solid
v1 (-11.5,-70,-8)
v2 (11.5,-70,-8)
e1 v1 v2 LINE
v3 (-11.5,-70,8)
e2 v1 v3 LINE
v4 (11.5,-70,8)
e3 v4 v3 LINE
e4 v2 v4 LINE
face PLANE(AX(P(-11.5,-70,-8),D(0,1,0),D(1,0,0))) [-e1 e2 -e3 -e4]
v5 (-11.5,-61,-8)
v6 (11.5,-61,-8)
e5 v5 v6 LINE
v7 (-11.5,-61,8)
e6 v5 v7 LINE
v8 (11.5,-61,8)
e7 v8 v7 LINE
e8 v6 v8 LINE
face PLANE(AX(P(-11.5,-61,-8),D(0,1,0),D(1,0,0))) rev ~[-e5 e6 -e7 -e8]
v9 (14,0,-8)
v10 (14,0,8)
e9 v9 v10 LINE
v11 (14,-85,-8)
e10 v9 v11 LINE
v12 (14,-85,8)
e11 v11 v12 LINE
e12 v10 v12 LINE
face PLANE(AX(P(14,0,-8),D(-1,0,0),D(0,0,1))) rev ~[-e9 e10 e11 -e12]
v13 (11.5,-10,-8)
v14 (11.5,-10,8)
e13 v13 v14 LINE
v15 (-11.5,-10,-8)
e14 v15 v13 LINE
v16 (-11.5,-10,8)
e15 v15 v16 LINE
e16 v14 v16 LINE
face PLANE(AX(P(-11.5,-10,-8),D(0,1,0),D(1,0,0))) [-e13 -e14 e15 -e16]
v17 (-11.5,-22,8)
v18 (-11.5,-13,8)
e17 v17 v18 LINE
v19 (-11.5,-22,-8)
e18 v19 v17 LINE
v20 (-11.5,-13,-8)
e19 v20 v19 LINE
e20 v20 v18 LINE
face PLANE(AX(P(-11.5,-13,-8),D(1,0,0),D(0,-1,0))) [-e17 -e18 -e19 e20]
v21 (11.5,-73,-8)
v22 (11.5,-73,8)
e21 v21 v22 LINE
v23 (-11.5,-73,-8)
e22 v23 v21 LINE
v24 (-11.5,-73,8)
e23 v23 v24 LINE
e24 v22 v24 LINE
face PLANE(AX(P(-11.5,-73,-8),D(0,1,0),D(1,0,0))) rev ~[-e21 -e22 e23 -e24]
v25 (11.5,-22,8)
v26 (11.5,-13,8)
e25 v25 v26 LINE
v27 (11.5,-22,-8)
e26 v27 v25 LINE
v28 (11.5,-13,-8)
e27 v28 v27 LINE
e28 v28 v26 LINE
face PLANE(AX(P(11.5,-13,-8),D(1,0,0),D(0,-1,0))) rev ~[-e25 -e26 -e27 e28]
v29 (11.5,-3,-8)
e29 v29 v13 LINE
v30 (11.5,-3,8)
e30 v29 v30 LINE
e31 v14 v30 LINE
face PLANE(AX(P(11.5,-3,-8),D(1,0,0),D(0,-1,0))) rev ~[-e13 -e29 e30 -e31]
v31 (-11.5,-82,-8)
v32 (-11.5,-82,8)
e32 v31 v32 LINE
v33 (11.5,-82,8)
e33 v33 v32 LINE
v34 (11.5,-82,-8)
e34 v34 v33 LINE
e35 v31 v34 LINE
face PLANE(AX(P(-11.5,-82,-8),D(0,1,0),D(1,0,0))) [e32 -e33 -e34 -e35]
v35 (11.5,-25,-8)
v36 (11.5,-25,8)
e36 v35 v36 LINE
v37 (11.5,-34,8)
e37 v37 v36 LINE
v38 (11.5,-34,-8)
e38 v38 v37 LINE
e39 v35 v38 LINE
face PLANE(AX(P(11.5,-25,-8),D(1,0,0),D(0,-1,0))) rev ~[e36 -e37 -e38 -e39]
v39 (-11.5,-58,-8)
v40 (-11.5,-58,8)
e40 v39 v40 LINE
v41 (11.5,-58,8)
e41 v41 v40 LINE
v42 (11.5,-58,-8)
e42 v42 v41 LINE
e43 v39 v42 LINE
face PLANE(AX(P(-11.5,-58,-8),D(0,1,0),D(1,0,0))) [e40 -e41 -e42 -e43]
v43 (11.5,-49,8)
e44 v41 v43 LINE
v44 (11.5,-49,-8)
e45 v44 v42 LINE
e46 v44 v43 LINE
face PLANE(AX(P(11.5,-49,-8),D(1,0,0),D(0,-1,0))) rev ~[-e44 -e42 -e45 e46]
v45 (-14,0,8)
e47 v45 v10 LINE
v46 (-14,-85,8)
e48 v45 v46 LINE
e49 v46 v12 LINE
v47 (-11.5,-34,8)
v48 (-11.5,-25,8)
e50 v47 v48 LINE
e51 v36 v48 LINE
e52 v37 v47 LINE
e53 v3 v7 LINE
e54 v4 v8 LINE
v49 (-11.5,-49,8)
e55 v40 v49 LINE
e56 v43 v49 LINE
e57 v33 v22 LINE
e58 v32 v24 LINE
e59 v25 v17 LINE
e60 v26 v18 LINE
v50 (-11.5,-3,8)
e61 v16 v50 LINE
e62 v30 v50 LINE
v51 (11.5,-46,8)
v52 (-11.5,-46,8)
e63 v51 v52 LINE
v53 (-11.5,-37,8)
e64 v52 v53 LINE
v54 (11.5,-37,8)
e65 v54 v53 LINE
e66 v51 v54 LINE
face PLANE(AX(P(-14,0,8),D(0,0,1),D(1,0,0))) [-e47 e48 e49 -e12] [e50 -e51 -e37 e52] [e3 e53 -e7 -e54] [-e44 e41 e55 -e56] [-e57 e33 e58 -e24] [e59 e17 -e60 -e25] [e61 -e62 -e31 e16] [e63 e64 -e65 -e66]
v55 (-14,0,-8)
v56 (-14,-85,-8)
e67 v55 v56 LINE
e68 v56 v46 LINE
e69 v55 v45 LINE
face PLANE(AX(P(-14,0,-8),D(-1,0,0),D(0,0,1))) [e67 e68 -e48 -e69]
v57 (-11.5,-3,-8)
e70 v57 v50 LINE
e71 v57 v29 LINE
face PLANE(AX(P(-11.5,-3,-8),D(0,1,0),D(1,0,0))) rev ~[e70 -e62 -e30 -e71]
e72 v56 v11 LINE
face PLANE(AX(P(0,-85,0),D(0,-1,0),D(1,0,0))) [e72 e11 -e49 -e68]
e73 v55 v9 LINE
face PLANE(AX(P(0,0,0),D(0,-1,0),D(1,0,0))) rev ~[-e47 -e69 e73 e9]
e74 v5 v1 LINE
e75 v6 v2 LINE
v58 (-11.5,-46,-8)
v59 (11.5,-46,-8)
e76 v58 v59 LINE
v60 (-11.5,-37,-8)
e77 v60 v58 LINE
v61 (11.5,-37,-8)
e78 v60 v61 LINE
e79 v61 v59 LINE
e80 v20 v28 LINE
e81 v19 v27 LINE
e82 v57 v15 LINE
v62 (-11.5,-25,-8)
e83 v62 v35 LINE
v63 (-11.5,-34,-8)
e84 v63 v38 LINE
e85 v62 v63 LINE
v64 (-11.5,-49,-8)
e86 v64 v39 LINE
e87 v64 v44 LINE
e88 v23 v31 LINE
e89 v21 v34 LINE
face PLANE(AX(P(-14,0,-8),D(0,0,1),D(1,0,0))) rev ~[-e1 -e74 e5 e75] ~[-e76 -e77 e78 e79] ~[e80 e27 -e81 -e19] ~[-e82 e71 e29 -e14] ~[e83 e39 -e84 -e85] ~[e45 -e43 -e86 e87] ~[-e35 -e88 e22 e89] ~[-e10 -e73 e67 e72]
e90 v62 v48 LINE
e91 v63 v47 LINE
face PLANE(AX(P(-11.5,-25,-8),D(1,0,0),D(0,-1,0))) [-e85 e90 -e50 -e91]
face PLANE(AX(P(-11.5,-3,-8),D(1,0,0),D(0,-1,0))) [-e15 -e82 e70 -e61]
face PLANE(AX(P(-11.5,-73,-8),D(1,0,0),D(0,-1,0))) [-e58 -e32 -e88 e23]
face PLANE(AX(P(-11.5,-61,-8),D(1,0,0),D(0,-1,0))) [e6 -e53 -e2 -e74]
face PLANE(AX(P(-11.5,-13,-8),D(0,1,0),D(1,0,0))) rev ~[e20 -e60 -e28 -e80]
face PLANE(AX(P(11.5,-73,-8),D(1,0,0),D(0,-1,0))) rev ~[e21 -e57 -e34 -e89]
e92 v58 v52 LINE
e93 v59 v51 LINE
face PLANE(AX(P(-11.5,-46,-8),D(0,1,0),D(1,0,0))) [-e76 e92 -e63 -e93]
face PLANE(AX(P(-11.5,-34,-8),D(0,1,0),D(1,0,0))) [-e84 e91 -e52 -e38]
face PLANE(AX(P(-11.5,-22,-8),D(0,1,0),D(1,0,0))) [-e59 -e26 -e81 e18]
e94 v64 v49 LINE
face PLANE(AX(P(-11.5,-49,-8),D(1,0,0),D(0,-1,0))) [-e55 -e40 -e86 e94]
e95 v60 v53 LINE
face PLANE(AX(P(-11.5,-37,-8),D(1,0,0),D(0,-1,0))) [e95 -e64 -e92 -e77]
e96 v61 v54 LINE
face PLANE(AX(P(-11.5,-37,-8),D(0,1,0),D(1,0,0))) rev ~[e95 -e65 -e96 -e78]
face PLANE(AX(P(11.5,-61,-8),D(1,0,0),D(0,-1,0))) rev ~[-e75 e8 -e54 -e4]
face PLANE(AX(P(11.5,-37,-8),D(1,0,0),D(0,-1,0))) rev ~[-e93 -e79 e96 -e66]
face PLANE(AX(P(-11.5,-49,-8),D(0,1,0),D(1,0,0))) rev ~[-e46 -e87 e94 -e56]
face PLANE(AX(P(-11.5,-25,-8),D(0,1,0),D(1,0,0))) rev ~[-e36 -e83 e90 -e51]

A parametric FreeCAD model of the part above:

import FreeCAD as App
import Part
import Sketcher

doc = App.newDocument("Part")
params = doc.addObject("Spreadsheet::Sheet", "Params")
for row, (alias, value) in enumerate([
    ("sketch1_width", "28 mm"),
    ("sketch1_height", "16 mm"),
    ("pad1_length", "85 mm"),
    ("sketch2_width", "23 mm"),
    ("sketch2_height", "9 mm"),
    ("sketch2_height2", "7 mm"),
    ("pocket1_length", "25 mm"),
], start=1):
    params.set(f"A{row}", alias)
    params.set(f"B{row}", "=" + value)
    params.setAlias(f"B{row}", alias)

body = doc.addObject("PartDesign::Body", "Body")

sketch1 = body.newObject("Sketcher::SketchObject", "Sketch")
sketch1.AttachmentSupport = (doc.getObject("XZ_Plane"), [""])
sketch1.MapMode = "FlatFace"
sketch1.addGeometry([
    Part.LineSegment(App.Vector(-14, 8, 0), App.Vector(-14, -8, 0)),
    Part.LineSegment(App.Vector(-14, -8, 0), App.Vector(14, -8, 0)),
    Part.LineSegment(App.Vector(14, -8, 0), App.Vector(14, 8, 0)),
    Part.LineSegment(App.Vector(14, 8, 0), App.Vector(-14, 8, 0)),
], False)
sketch1.addConstraint([
    Sketcher.Constraint("Coincident", 0, 2, 1, 1),
    Sketcher.Constraint("Coincident", 1, 2, 2, 1),
    Sketcher.Constraint("Coincident", 2, 2, 3, 1),
    Sketcher.Constraint("Coincident", 3, 2, 0, 1),
    Sketcher.Constraint("Vertical", 0),
    Sketcher.Constraint("Horizontal", 1),
    Sketcher.Constraint("Vertical", 2),
    Sketcher.Constraint("Horizontal", 3),
    Sketcher.Constraint("Symmetric", 0, 2, 2, 2, -1, 1),
    Sketcher.Constraint("DistanceX", 1, 1, 1, 2, 28.0),
    Sketcher.Constraint("DistanceY", 0, 2, 0, 1, 16.0),
])
sketch1.setExpression("Constraints[9]", "Params.sketch1_width")
sketch1.setExpression("Constraints[10]", "Params.sketch1_height")
pad1 = body.newObject("PartDesign::Pad", "Pad")
pad1.Profile = sketch1
pad1.setExpression("Length", "Params.pad1_length")

sketch2 = body.newObject("Sketcher::SketchObject", "Sketch001")
sketch2.AttachmentSupport = (doc.getObject("XY_Plane"), [""])
sketch2.MapMode = "FlatFace"
sketch2.AttachmentOffset = App.Placement(App.Vector(0, 0, -8), App.Rotation())
sketch2.addGeometry([
    Part.LineSegment(App.Vector(-12, -82, 0), App.Vector(-12, -73, 0)),
    Part.LineSegment(App.Vector(-12, -73, 0), App.Vector(12, -73, 0)),
    Part.LineSegment(App.Vector(12, -73, 0), App.Vector(12, -82, 0)),
    Part.LineSegment(App.Vector(12, -82, 0), App.Vector(-12, -82, 0)),
    Part.LineSegment(App.Vector(-12, -70, 0), App.Vector(-12, -61, 0)),
    Part.LineSegment(App.Vector(-12, -61, 0), App.Vector(12, -61, 0)),
    Part.LineSegment(App.Vector(12, -61, 0), App.Vector(12, -70, 0)),
    Part.LineSegment(App.Vector(12, -70, 0), App.Vector(-12, -70, 0)),
    Part.LineSegment(App.Vector(-12, -58, 0), App.Vector(-12, -49, 0)),
    Part.LineSegment(App.Vector(-12, -49, 0), App.Vector(12, -49, 0)),
    Part.LineSegment(App.Vector(12, -49, 0), App.Vector(12, -58, 0)),
    Part.LineSegment(App.Vector(12, -58, 0), App.Vector(-12, -58, 0)),
    Part.LineSegment(App.Vector(-12, -46, 0), App.Vector(-12, -37, 0)),
    Part.LineSegment(App.Vector(-12, -37, 0), App.Vector(12, -37, 0)),
    Part.LineSegment(App.Vector(12, -37, 0), App.Vector(12, -46, 0)),
    Part.LineSegment(App.Vector(12, -46, 0), App.Vector(-12, -46, 0)),
    Part.LineSegment(App.Vector(-12, -34, 0), App.Vector(-12, -25, 0)),
    Part.LineSegment(App.Vector(-12, -25, 0), App.Vector(12, -25, 0)),
    Part.LineSegment(App.Vector(12, -25, 0), App.Vector(12, -34, 0)),
    Part.LineSegment(App.Vector(12, -34, 0), App.Vector(-12, -34, 0)),
    Part.LineSegment(App.Vector(-12, -22, 0), App.Vector(-12, -13, 0)),
    Part.LineSegment(App.Vector(-12, -13, 0), App.Vector(12, -13, 0)),
    Part.LineSegment(App.Vector(12, -13, 0), App.Vector(12, -22, 0)),
    Part.LineSegment(App.Vector(12, -22, 0), App.Vector(-12, -22, 0)),
    Part.LineSegment(App.Vector(-12, -10, 0), App.Vector(-12, -3, 0)),
    Part.LineSegment(App.Vector(-12, -3, 0), App.Vector(12, -3, 0)),
    Part.LineSegment(App.Vector(12, -3, 0), App.Vector(12, -10, 0)),
    Part.LineSegment(App.Vector(12, -10, 0), App.Vector(-12, -10, 0)),
], False)
sketch2.addConstraint([
    Sketcher.Constraint("Coincident", 0, 2, 1, 1),
    Sketcher.Constraint("Coincident", 1, 2, 2, 1),
    Sketcher.Constraint("Coincident", 2, 2, 3, 1),
    Sketcher.Constraint("Coincident", 3, 2, 0, 1),
    Sketcher.Constraint("Coincident", 4, 2, 5, 1),
    Sketcher.Constraint("Coincident", 5, 2, 6, 1),
    Sketcher.Constraint("Coincident", 6, 2, 7, 1),
    Sketcher.Constraint("Coincident", 7, 2, 4, 1),
    Sketcher.Constraint("Coincident", 8, 2, 9, 1),
    Sketcher.Constraint("Coincident", 9, 2, 10, 1),
    Sketcher.Constraint("Coincident", 10, 2, 11, 1),
    Sketcher.Constraint("Coincident", 11, 2, 8, 1),
    Sketcher.Constraint("Coincident", 12, 2, 13, 1),
    Sketcher.Constraint("Coincident", 13, 2, 14, 1),
    Sketcher.Constraint("Coincident", 14, 2, 15, 1),
    Sketcher.Constraint("Coincident", 15, 2, 12, 1),
    Sketcher.Constraint("Coincident", 16, 2, 17, 1),
    Sketcher.Constraint("Coincident", 17, 2, 18, 1),
    Sketcher.Constraint("Coincident", 18, 2, 19, 1),
    Sketcher.Constraint("Coincident", 19, 2, 16, 1),
    Sketcher.Constraint("Coincident", 20, 2, 21, 1),
    Sketcher.Constraint("Coincident", 21, 2, 22, 1),
    Sketcher.Constraint("Coincident", 22, 2, 23, 1),
    Sketcher.Constraint("Coincident", 23, 2, 20, 1),
    Sketcher.Constraint("Coincident", 24, 2, 25, 1),
    Sketcher.Constraint("Coincident", 25, 2, 26, 1),
    Sketcher.Constraint("Coincident", 26, 2, 27, 1),
    Sketcher.Constraint("Coincident", 27, 2, 24, 1),
    Sketcher.Constraint("Vertical", 0),
    Sketcher.Constraint("Horizontal", 1),
    Sketcher.Constraint("Vertical", 2),
    Sketcher.Constraint("Horizontal", 3),
    Sketcher.Constraint("Vertical", 4),
    Sketcher.Constraint("Horizontal", 5),
    Sketcher.Constraint("Vertical", 6),
    Sketcher.Constraint("Horizontal", 7),
    Sketcher.Constraint("Vertical", 8),
    Sketcher.Constraint("Horizontal", 9),
    Sketcher.Constraint("Vertical", 10),
    Sketcher.Constraint("Horizontal", 11),
    Sketcher.Constraint("Vertical", 12),
    Sketcher.Constraint("Horizontal", 13),
    Sketcher.Constraint("Vertical", 14),
    Sketcher.Constraint("Horizontal", 15),
    Sketcher.Constraint("Vertical", 16),
    Sketcher.Constraint("Horizontal", 17),
    Sketcher.Constraint("Vertical", 18),
    Sketcher.Constraint("Horizontal", 19),
    Sketcher.Constraint("Vertical", 20),
    Sketcher.Constraint("Horizontal", 21),
    Sketcher.Constraint("Vertical", 22),
    Sketcher.Constraint("Horizontal", 23),
    Sketcher.Constraint("Vertical", 24),
    Sketcher.Constraint("Horizontal", 25),
    Sketcher.Constraint("Vertical", 26),
    Sketcher.Constraint("Horizontal", 27),
    Sketcher.Constraint("Vertical", 3, 2, 4, 2),
    Sketcher.Constraint("Vertical", 2, 2, 5, 2),
    Sketcher.Constraint("Vertical", 7, 2, 8, 2),
    Sketcher.Constraint("Vertical", 6, 2, 9, 2),
    Sketcher.Constraint("Vertical", 11, 2, 12, 2),
    Sketcher.Constraint("Vertical", 10, 2, 13, 2),
    Sketcher.Constraint("Vertical", 15, 2, 16, 2),
    Sketcher.Constraint("Vertical", 14, 2, 17, 2),
    Sketcher.Constraint("Vertical", 19, 2, 20, 2),
    Sketcher.Constraint("Vertical", 18, 2, 21, 2),
    Sketcher.Constraint("Vertical", 23, 2, 24, 2),
    Sketcher.Constraint("Vertical", 22, 2, 25, 2),
    Sketcher.Constraint("Equal", 2, 4),
    Sketcher.Constraint("Equal", 6, 8),
    Sketcher.Constraint("Equal", 10, 12),
    Sketcher.Constraint("Equal", 14, 16),
    Sketcher.Constraint("Equal", 18, 20),
    Sketcher.Constraint("DistanceX", 1, 1, 1, 2, 23.0),
    Sketcher.Constraint("DistanceY", 0, 1, 0, 2, 9.0),
    Sketcher.Constraint("DistanceY", 24, 1, 24, 2, 7.0),
    Sketcher.Constraint("DistanceY", 0, 2, -1, 1, 73.0),
    Sketcher.Constraint("DistanceY", 4, 2, -1, 1, 61.0),
    Sketcher.Constraint("DistanceY", 8, 2, -1, 1, 49.0),
    Sketcher.Constraint("DistanceY", 12, 2, -1, 1, 37.0),
    Sketcher.Constraint("DistanceY", 16, 2, -1, 1, 25.0),
    Sketcher.Constraint("DistanceY", 20, 2, -1, 1, 13.0),
    Sketcher.Constraint("DistanceY", 24, 2, -1, 1, 3.0),
    Sketcher.Constraint("DistanceX", 0, 2, -1, 1, 11.5),
])
sketch2.setExpression("Constraints[73]", "Params.sketch2_width")
sketch2.setExpression("Constraints[74]", "Params.sketch2_height")
sketch2.setExpression("Constraints[75]", "Params.sketch2_height2")
pocket1 = body.newObject("PartDesign::Pocket", "Pocket")
pocket1.Profile = sketch2
pocket1.setExpression("Length", "Params.pocket1_length")
pocket1.Reversed = True

doc.recompute()
